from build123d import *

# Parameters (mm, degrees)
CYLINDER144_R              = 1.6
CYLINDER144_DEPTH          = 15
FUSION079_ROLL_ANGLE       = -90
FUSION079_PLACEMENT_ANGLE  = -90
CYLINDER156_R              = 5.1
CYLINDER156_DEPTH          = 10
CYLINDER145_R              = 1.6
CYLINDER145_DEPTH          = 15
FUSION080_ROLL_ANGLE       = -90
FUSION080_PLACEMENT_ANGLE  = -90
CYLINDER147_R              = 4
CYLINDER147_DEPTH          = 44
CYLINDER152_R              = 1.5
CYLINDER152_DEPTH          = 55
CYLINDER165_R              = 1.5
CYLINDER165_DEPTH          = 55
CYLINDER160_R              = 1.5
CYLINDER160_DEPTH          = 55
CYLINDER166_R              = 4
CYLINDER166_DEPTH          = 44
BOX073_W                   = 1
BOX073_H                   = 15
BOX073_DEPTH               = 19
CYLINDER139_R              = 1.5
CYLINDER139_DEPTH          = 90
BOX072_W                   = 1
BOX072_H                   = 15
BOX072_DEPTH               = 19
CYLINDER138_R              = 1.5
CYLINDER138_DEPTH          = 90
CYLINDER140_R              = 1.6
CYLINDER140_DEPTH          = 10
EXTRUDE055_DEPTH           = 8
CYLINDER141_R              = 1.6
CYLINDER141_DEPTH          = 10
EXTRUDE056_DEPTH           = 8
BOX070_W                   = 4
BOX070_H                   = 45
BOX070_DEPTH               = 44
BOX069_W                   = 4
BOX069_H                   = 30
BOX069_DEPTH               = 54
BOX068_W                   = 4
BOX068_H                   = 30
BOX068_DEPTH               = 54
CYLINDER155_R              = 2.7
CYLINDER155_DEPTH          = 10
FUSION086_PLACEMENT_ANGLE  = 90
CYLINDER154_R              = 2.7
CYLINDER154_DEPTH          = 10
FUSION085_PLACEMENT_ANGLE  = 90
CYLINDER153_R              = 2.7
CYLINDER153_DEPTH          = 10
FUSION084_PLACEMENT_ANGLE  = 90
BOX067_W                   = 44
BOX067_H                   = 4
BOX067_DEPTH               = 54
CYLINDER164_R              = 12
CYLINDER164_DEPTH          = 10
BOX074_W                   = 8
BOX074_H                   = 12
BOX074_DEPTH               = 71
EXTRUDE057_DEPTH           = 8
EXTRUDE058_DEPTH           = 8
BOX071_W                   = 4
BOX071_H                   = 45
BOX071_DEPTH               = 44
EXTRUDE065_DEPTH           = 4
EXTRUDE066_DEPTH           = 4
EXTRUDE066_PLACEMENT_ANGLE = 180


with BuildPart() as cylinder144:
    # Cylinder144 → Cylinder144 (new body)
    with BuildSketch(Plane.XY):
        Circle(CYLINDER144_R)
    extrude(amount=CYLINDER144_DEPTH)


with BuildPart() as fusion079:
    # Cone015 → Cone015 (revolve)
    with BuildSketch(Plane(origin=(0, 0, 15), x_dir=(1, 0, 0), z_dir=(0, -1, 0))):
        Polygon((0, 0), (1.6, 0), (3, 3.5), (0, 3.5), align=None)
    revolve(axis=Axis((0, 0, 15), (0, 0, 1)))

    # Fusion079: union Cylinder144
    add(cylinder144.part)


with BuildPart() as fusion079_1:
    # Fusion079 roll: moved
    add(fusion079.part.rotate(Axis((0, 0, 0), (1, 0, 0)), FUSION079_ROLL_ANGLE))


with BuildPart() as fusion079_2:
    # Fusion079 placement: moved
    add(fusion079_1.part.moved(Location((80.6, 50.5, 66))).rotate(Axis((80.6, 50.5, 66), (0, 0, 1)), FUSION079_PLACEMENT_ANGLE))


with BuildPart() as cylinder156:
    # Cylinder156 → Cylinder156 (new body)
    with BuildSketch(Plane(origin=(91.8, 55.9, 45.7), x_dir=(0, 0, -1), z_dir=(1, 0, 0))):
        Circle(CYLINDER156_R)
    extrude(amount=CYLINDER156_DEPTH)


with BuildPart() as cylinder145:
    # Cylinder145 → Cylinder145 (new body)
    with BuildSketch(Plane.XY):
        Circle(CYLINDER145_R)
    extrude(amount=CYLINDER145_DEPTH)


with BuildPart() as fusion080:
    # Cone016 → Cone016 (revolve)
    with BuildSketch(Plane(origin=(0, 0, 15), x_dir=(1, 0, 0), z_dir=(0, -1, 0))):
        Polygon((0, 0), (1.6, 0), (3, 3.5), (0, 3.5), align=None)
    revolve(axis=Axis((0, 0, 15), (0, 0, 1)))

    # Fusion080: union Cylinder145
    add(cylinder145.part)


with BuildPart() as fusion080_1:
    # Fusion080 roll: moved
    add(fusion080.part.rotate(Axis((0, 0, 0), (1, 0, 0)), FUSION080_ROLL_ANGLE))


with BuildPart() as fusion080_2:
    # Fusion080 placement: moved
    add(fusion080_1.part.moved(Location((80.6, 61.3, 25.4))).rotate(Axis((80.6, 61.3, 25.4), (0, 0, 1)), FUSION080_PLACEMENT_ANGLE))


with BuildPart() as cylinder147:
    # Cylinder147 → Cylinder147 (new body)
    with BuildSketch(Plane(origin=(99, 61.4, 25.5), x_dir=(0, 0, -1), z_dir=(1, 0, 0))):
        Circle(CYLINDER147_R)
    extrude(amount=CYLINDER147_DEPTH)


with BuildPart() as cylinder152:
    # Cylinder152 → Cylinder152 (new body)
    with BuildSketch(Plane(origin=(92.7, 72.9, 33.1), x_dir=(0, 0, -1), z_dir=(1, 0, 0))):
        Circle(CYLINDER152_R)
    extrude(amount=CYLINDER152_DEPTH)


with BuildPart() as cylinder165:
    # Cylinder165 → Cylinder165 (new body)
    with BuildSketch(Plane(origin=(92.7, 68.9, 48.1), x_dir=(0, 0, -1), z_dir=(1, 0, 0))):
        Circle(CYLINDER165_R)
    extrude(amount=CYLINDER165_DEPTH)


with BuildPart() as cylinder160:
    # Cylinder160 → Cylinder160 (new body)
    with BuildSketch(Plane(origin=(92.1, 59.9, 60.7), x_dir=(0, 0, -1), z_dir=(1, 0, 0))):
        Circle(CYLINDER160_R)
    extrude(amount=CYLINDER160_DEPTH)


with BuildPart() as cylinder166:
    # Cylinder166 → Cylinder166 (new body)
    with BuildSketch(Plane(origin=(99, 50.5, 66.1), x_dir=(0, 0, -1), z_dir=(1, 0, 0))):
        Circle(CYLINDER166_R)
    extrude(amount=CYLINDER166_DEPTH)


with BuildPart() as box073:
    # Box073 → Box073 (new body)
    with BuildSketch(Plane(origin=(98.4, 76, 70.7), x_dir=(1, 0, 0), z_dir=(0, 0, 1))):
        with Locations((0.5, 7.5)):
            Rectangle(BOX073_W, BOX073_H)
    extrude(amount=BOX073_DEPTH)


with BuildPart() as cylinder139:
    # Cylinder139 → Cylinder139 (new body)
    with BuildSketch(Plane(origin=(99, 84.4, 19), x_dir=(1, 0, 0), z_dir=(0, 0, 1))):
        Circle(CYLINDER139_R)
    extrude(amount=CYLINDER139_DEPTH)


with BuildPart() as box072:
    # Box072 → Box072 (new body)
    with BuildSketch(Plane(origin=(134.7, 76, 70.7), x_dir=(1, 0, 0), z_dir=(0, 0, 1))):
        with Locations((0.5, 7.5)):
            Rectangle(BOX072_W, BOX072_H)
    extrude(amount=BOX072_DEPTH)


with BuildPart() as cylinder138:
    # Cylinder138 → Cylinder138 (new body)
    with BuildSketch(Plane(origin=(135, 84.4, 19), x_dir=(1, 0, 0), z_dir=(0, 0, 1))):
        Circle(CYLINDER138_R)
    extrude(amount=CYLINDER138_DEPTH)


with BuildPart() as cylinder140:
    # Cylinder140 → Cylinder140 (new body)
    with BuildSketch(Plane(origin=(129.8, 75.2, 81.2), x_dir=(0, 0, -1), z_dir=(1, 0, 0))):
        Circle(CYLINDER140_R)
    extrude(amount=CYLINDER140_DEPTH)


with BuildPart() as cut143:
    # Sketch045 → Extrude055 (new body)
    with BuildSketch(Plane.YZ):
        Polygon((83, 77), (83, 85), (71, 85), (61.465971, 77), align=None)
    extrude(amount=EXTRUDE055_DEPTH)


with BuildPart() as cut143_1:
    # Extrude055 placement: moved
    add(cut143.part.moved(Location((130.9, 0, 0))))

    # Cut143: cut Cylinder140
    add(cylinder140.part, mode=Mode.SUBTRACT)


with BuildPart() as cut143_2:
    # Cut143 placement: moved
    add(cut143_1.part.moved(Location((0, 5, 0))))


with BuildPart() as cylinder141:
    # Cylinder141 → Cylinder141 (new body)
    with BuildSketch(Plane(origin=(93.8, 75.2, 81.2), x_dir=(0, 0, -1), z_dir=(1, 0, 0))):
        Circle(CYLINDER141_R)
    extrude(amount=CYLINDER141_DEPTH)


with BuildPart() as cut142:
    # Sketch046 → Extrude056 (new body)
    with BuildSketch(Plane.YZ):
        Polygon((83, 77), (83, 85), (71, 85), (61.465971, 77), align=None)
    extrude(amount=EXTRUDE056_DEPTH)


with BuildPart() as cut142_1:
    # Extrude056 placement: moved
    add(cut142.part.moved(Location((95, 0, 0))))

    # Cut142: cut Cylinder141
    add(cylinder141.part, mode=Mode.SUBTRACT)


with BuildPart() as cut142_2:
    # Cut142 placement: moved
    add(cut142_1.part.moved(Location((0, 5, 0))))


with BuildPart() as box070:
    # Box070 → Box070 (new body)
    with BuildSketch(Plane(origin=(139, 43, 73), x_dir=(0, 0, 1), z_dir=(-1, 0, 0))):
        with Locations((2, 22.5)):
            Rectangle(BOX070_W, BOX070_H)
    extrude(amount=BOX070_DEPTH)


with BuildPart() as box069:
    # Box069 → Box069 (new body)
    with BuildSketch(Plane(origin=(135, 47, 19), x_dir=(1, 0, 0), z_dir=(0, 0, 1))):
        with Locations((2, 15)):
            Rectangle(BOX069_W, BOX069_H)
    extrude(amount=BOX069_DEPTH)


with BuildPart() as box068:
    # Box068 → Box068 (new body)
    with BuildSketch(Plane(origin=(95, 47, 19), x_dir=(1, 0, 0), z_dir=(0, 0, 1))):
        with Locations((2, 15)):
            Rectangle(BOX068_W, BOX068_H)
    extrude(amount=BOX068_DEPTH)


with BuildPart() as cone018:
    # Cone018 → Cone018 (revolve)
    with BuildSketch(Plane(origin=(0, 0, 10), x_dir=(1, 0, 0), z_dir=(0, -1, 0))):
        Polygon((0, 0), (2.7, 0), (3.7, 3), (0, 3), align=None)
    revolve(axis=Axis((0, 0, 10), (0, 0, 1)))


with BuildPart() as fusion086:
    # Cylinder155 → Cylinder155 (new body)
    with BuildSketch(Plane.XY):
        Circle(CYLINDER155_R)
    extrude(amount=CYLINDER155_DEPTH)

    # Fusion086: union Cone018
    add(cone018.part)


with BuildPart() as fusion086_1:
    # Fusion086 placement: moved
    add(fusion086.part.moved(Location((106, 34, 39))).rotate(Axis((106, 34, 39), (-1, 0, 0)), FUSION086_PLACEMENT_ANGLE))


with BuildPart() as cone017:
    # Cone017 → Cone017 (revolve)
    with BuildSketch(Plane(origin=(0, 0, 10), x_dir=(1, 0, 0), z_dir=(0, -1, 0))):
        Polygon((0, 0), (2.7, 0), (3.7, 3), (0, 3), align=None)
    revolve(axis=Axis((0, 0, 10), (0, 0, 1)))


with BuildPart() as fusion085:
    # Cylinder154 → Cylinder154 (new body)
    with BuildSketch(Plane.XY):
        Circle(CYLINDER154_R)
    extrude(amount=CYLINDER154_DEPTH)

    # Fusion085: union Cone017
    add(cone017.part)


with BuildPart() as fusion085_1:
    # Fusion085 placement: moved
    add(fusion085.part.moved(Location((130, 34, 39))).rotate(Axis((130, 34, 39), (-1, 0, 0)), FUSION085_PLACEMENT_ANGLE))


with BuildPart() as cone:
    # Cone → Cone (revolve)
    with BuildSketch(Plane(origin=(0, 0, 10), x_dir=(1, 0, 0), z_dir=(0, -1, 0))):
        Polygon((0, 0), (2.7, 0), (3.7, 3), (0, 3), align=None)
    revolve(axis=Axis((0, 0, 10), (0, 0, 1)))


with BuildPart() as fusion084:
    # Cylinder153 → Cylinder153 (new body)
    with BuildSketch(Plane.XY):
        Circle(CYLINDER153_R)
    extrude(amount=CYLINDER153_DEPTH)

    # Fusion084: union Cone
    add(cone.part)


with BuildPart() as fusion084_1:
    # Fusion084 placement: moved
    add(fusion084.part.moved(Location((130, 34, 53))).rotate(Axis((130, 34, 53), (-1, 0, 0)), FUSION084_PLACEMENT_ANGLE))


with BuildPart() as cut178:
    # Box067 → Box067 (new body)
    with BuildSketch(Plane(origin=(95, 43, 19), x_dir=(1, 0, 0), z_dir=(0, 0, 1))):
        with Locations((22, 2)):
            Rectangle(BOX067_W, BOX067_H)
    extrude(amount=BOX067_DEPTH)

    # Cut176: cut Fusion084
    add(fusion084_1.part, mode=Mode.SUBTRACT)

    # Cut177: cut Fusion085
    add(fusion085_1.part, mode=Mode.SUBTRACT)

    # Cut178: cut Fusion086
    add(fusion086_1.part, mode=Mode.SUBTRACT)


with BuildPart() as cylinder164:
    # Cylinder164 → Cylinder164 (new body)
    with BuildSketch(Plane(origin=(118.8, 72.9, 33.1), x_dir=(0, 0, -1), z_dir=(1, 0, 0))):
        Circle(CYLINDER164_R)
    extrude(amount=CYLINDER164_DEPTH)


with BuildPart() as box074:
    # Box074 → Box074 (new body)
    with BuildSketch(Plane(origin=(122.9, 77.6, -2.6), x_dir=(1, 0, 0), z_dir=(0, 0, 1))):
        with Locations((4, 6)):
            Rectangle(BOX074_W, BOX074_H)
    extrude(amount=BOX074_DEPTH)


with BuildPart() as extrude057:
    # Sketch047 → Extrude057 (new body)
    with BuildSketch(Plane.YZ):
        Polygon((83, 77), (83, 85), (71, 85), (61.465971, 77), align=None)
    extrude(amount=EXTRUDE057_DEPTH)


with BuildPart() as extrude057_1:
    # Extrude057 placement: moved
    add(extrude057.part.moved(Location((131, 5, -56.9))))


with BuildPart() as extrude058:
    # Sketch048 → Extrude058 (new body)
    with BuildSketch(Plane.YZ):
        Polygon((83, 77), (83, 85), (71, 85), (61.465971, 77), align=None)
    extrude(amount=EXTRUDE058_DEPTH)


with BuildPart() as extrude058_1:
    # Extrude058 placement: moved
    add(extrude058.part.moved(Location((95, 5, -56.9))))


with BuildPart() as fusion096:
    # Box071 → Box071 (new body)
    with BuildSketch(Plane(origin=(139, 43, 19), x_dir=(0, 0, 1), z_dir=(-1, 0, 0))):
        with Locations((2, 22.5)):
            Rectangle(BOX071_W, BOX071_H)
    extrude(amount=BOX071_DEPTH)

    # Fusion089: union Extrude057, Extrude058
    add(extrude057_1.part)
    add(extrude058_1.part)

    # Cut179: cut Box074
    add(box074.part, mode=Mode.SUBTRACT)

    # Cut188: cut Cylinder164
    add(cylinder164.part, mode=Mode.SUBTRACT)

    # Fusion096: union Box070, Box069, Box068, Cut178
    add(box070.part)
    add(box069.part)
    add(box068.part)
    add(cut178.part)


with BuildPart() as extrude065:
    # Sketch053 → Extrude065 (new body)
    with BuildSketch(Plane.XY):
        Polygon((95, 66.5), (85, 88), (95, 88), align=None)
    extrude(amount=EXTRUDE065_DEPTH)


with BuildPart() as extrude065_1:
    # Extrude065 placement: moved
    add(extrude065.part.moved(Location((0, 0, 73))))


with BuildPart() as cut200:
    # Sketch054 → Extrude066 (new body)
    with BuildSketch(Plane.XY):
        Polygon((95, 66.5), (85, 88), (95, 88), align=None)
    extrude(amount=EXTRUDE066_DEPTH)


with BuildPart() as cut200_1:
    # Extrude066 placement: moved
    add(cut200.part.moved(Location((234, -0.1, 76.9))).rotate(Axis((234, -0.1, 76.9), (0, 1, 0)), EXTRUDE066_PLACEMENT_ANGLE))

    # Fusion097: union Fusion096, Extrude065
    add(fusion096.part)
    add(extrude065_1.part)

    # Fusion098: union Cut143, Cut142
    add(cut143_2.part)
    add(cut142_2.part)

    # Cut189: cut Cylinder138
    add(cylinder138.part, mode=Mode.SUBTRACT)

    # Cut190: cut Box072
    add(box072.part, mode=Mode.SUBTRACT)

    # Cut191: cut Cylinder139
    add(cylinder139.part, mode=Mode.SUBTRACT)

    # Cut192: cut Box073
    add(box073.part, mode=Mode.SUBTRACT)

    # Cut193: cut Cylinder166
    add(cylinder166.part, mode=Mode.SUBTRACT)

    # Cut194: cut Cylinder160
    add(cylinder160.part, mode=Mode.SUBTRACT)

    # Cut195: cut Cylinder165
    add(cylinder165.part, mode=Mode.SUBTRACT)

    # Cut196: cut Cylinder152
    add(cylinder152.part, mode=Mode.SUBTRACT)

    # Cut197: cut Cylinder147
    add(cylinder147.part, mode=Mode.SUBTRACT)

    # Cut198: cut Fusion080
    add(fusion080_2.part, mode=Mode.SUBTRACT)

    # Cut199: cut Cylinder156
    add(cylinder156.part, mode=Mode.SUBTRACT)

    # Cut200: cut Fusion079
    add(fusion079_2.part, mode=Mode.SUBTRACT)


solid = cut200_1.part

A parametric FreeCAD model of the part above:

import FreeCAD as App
import Part
import Sketcher

V = App.Vector
Q = App.Units.Quantity


def add_polygon(sketch, points):
    """Adds a closed chain of lines whose ends are joined by coincident constraints."""
    first, n = sketch.GeometryCount, len(points)
    for a, b in zip(points, points[1:] + points[:1]):
        sketch.addGeometry(Part.LineSegment(App.Vector(*a, 0), App.Vector(*b, 0)), False)
    for i in range(n):
        sketch.addConstraint(Sketcher.Constraint("Coincident", first + i, 2, first + (i + 1) % n, 1))

doc = App.newDocument("Part")
body = doc.addObject("PartDesign::Body", "Body")

sketch1 = body.newObject("Sketcher::SketchObject", "Sketch")
sketch1.AttachmentSupport = (doc.getObject("XY_Plane"), [""])
sketch1.MapMode = "FlatFace"
sketch1.addGeometry(Part.Circle(V(0, 0, 0), V(0, 0, 1), 1.6), False)
sketch1.addConstraint([
    Sketcher.Constraint("Coincident", 0, 3, -1, 1),
    Sketcher.Constraint("Diameter", 0, Q("3.2 mm")),
])
pad1 = body.newObject("PartDesign::Pad", "Pad")
pad1.Profile = sketch1
pad1.Length = 15
body2 = doc.addObject("PartDesign::Body", "Body001")

sketch2 = body2.newObject("Sketcher::SketchObject", "Sketch001")
sketch2.AttachmentSupport = (doc.getObject("XZ_Plane001"), [""])
sketch2.MapMode = "FlatFace"
add_polygon(sketch2, [(0, 15), (1.6, 15), (3, 18.5), (0, 18.5)])
sketch2.addConstraint([
    Sketcher.Constraint("Horizontal", 0),
    Sketcher.Constraint("Horizontal", 2),
    Sketcher.Constraint("Vertical", 3),
    Sketcher.Constraint("PointOnObject", 2, 2, -2),
    Sketcher.Constraint("DistanceX", 2, 2, 2, 1, Q("3 mm")),
    Sketcher.Constraint("DistanceX", 0, 1, 0, 2, Q("1.6 mm")),
    Sketcher.Constraint("DistanceY", 3, 2, 3, 1, Q("3.5 mm")),
    Sketcher.Constraint("DistanceY", -1, 1, 0, 2, Q("15 mm")),
])
revolution = body2.newObject("PartDesign::Revolution", "Revolution")
revolution.Profile = sketch2
revolution.ReferenceAxis = (sketch2, ["V_Axis"])
revolution.Angle = 360
doc.recompute()

boolean = body2.newObject("PartDesign::Boolean", "Boolean")
boolean.Type = "Fuse"
boolean.addObjects([body])
body3 = doc.addObject("PartDesign::Body", "Body002")
doc.recompute()

body2.Placement = App.Placement(V(0, 0, 0), App.Rotation(V(1, 0, 0), 270))
boolean2 = body3.newObject("PartDesign::Boolean", "Boolean001")
boolean2.Type = "Fuse"
boolean2.addObjects([body2])
body4 = doc.addObject("PartDesign::Body", "Body003")
doc.recompute()

body3.Placement = App.Placement(V(80.6, 50.5, 66), App.Rotation(V(0, 0, 1), 270))
boolean3 = body4.newObject("PartDesign::Boolean", "Boolean002")
boolean3.Type = "Fuse"
boolean3.addObjects([body3])
body5 = doc.addObject("PartDesign::Body", "Body004")

sketch3 = body5.newObject("Sketcher::SketchObject", "Sketch002")
sketch3.AttachmentSupport = (doc.getObject("YZ_Plane004"), [""])
sketch3.MapMode = "FlatFace"
sketch3.AttachmentOffset = App.Placement(V(0, 0, 91.8), App.Rotation())
sketch3.addGeometry(Part.Circle(V(56, 46, 0), V(0, 0, 1), 5), False)
sketch3.addConstraint([
    Sketcher.Constraint("Diameter", 0, Q("10.2 mm")),
    Sketcher.Constraint("DistanceX", -1, 1, 0, 3, Q("55.9 mm")),
    Sketcher.Constraint("DistanceY", -1, 1, 0, 3, Q("45.7 mm")),
])
pad2 = body5.newObject("PartDesign::Pad", "Pad001")
pad2.Profile = sketch3
pad2.Length = 10
body6 = doc.addObject("PartDesign::Body", "Body005")

sketch4 = body6.newObject("Sketcher::SketchObject", "Sketch003")
sketch4.AttachmentSupport = (doc.getObject("XY_Plane005"), [""])
sketch4.MapMode = "FlatFace"
sketch4.addGeometry(Part.Circle(V(0, 0, 0), V(0, 0, 1), 1.6), False)
sketch4.addConstraint([
    Sketcher.Constraint("Coincident", 0, 3, -1, 1),
    Sketcher.Constraint("Diameter", 0, Q("3.2 mm")),
])
pad3 = body6.newObject("PartDesign::Pad", "Pad002")
pad3.Profile = sketch4
pad3.Length = 15
body7 = doc.addObject("PartDesign::Body", "Body006")

sketch5 = body7.newObject("Sketcher::SketchObject", "Sketch004")
sketch5.AttachmentSupport = (doc.getObject("XZ_Plane006"), [""])
sketch5.MapMode = "FlatFace"
add_polygon(sketch5, [(0, 15), (1.6, 15), (3, 18.5), (0, 18.5)])
sketch5.addConstraint([
    Sketcher.Constraint("Horizontal", 0),
    Sketcher.Constraint("Horizontal", 2),
    Sketcher.Constraint("Vertical", 3),
    Sketcher.Constraint("PointOnObject", 2, 2, -2),
    Sketcher.Constraint("DistanceX", 2, 2, 2, 1, Q("3 mm")),
    Sketcher.Constraint("DistanceX", 0, 1, 0, 2, Q("1.6 mm")),
    Sketcher.Constraint("DistanceY", 3, 2, 3, 1, Q("3.5 mm")),
    Sketcher.Constraint("DistanceY", -1, 1, 0, 2, Q("15 mm")),
])
revolution2 = body7.newObject("PartDesign::Revolution", "Revolution001")
revolution2.Profile = sketch5
revolution2.ReferenceAxis = (sketch5, ["V_Axis"])
revolution2.Angle = 360
doc.recompute()

boolean4 = body7.newObject("PartDesign::Boolean", "Boolean003")
boolean4.Type = "Fuse"
boolean4.addObjects([body6])
body8 = doc.addObject("PartDesign::Body", "Body007")
doc.recompute()

body7.Placement = App.Placement(V(0, 0, 0), App.Rotation(V(1, 0, 0), 270))
boolean5 = body8.newObject("PartDesign::Boolean", "Boolean004")
boolean5.Type = "Fuse"
boolean5.addObjects([body7])
body9 = doc.addObject("PartDesign::Body", "Body008")
doc.recompute()

body8.Placement = App.Placement(V(80.6, 61.3, 25.4), App.Rotation(V(0, 0, 1), 270))
boolean6 = body9.newObject("PartDesign::Boolean", "Boolean005")
boolean6.Type = "Fuse"
boolean6.addObjects([body8])
body10 = doc.addObject("PartDesign::Body", "Body009")

sketch6 = body10.newObject("Sketcher::SketchObject", "Sketch005")
sketch6.AttachmentSupport = (doc.getObject("YZ_Plane009"), [""])
sketch6.MapMode = "FlatFace"
sketch6.AttachmentOffset = App.Placement(V(0, 0, 99), App.Rotation())
sketch6.addGeometry(Part.Circle(V(61.4, 25.5, 0), V(0, 0, 1), 4), False)
sketch6.addConstraint([
    Sketcher.Constraint("Diameter", 0, Q("8 mm")),
    Sketcher.Constraint("DistanceX", -1, 1, 0, 3, Q("61.4 mm")),
    Sketcher.Constraint("DistanceY", -1, 1, 0, 3, Q("25.5 mm")),
])
pad4 = body10.newObject("PartDesign::Pad", "Pad003")
pad4.Profile = sketch6
pad4.Length = 44
body11 = doc.addObject("PartDesign::Body", "Body010")

sketch7 = body11.newObject("Sketcher::SketchObject", "Sketch006")
sketch7.AttachmentSupport = (doc.getObject("YZ_Plane010"), [""])
sketch7.MapMode = "FlatFace"
sketch7.AttachmentOffset = App.Placement(V(0, 0, 92.7), App.Rotation())
sketch7.addGeometry(Part.Circle(V(72.9, 33.1, 0), V(0, 0, 1), 1.5), False)
sketch7.addConstraint([
    Sketcher.Constraint("Diameter", 0, Q("3 mm")),
    Sketcher.Constraint("DistanceX", -1, 1, 0, 3, Q("72.9 mm")),
    Sketcher.Constraint("DistanceY", -1, 1, 0, 3, Q("33.1 mm")),
])
pad5 = body11.newObject("PartDesign::Pad", "Pad004")
pad5.Profile = sketch7
pad5.Length = 55
body12 = doc.addObject("PartDesign::Body", "Body011")

sketch8 = body12.newObject("Sketcher::SketchObject", "Sketch007")
sketch8.AttachmentSupport = (doc.getObject("YZ_Plane011"), [""])
sketch8.MapMode = "FlatFace"
sketch8.AttachmentOffset = App.Placement(V(0, 0, 92.7), App.Rotation())
sketch8.addGeometry(Part.Circle(V(68.9, 48.1, 0), V(0, 0, 1), 1.5), False)
sketch8.addConstraint([
    Sketcher.Constraint("Diameter", 0, Q("3 mm")),
    Sketcher.Constraint("DistanceX", -1, 1, 0, 3, Q("68.9 mm")),
    Sketcher.Constraint("DistanceY", -1, 1, 0, 3, Q("48.1 mm")),
])
pad6 = body12.newObject("PartDesign::Pad", "Pad005")
pad6.Profile = sketch8
pad6.Length = 55
body13 = doc.addObject("PartDesign::Body", "Body012")

sketch9 = body13.newObject("Sketcher::SketchObject", "Sketch008")
sketch9.AttachmentSupport = (doc.getObject("YZ_Plane012"), [""])
sketch9.MapMode = "FlatFace"
sketch9.AttachmentOffset = App.Placement(V(0, 0, 92.1), App.Rotation())
sketch9.addGeometry(Part.Circle(V(59.9, 60.7, 0), V(0, 0, 1), 1.5), False)
sketch9.addConstraint([
    Sketcher.Constraint("Diameter", 0, Q("3 mm")),
    Sketcher.Constraint("DistanceX", -1, 1, 0, 3, Q("59.9 mm")),
    Sketcher.Constraint("DistanceY", -1, 1, 0, 3, Q("60.7 mm")),
])
pad7 = body13.newObject("PartDesign::Pad", "Pad006")
pad7.Profile = sketch9
pad7.Length = 55
body14 = doc.addObject("PartDesign::Body", "Body013")

sketch10 = body14.newObject("Sketcher::SketchObject", "Sketch009")
sketch10.AttachmentSupport = (doc.getObject("YZ_Plane013"), [""])
sketch10.MapMode = "FlatFace"
sketch10.AttachmentOffset = App.Placement(V(0, 0, 99), App.Rotation())
sketch10.addGeometry(Part.Circle(V(50.5, 66.1, 0), V(0, 0, 1), 4), False)
sketch10.addConstraint([
    Sketcher.Constraint("Diameter", 0, Q("8 mm")),
    Sketcher.Constraint("DistanceX", -1, 1, 0, 3, Q("50.5 mm")),
    Sketcher.Constraint("DistanceY", -1, 1, 0, 3, Q("66.1 mm")),
])
pad8 = body14.newObject("PartDesign::Pad", "Pad007")
pad8.Profile = sketch10
pad8.Length = 44
body15 = doc.addObject("PartDesign::Body", "Body014")

sketch11 = body15.newObject("Sketcher::SketchObject", "Sketch010")
sketch11.AttachmentSupport = (doc.getObject("XY_Plane014"), [""])
sketch11.MapMode = "FlatFace"
sketch11.AttachmentOffset = App.Placement(V(0, 0, 70.7), App.Rotation())
add_polygon(sketch11, [(98.4, 91), (98.4, 76), (99.4, 76), (99.4, 91)])
sketch11.addConstraint([
    Sketcher.Constraint("Vertical", 0),
    Sketcher.Constraint("Horizontal", 1),
    Sketcher.Constraint("Vertical", 2),
    Sketcher.Constraint("Horizontal", 3),
    Sketcher.Constraint("DistanceX", 1, 1, 1, 2, Q("1 mm")),
    Sketcher.Constraint("DistanceY", 0, 2, 0, 1, Q("15 mm")),
    Sketcher.Constraint("DistanceY", -1, 1, 0, 2, Q("76 mm")),
    Sketcher.Constraint("DistanceX", -1, 1, 0, 2, Q("98.4 mm")),
])
pad9 = body15.newObject("PartDesign::Pad", "Pad008")
pad9.Profile = sketch11
pad9.Length = 19
body16 = doc.addObject("PartDesign::Body", "Body015")

sketch12 = body16.newObject("Sketcher::SketchObject", "Sketch011")
sketch12.AttachmentSupport = (doc.getObject("XY_Plane015"), [""])
sketch12.MapMode = "FlatFace"
sketch12.AttachmentOffset = App.Placement(V(0, 0, 19), App.Rotation())
sketch12.addGeometry(Part.Circle(V(99, 84.4, 0), V(0, 0, 1), 1.5), False)
sketch12.addConstraint([
    Sketcher.Constraint("Diameter", 0, Q("3 mm")),
    Sketcher.Constraint("DistanceX", -1, 1, 0, 3, Q("99 mm")),
    Sketcher.Constraint("DistanceY", -1, 1, 0, 3, Q("84.4 mm")),
])
pad10 = body16.newObject("PartDesign::Pad", "Pad009")
pad10.Profile = sketch12
pad10.Length = 90
body17 = doc.addObject("PartDesign::Body", "Body016")

sketch13 = body17.newObject("Sketcher::SketchObject", "Sketch012")
sketch13.AttachmentSupport = (doc.getObject("XY_Plane016"), [""])
sketch13.MapMode = "FlatFace"
sketch13.AttachmentOffset = App.Placement(V(0, 0, 70.7), App.Rotation())
add_polygon(sketch13, [(134.7, 91), (134.7, 76), (135.7, 76), (135.7, 91)])
sketch13.addConstraint([
    Sketcher.Constraint("Vertical", 0),
    Sketcher.Constraint("Horizontal", 1),
    Sketcher.Constraint("Vertical", 2),
    Sketcher.Constraint("Horizontal", 3),
    Sketcher.Constraint("DistanceX", 1, 1, 1, 2, Q("1 mm")),
    Sketcher.Constraint("DistanceY", 0, 2, 0, 1, Q("15 mm")),
    Sketcher.Constraint("DistanceY", -1, 1, 0, 2, Q("76 mm")),
    Sketcher.Constraint("DistanceX", -1, 1, 0, 2, Q("134.7 mm")),
])
pad11 = body17.newObject("PartDesign::Pad", "Pad010")
pad11.Profile = sketch13
pad11.Length = 19
body18 = doc.addObject("PartDesign::Body", "Body017")

sketch14 = body18.newObject("Sketcher::SketchObject", "Sketch013")
sketch14.AttachmentSupport = (doc.getObject("XY_Plane017"), [""])
sketch14.MapMode = "FlatFace"
sketch14.AttachmentOffset = App.Placement(V(0, 0, 19), App.Rotation())
sketch14.addGeometry(Part.Circle(V(135, 84.4, 0), V(0, 0, 1), 1.5), False)
sketch14.addConstraint([
    Sketcher.Constraint("Diameter", 0, Q("3 mm")),
    Sketcher.Constraint("DistanceX", -1, 1, 0, 3, Q("135 mm")),
    Sketcher.Constraint("DistanceY", -1, 1, 0, 3, Q("84.4 mm")),
])
pad12 = body18.newObject("PartDesign::Pad", "Pad011")
pad12.Profile = sketch14
pad12.Length = 90
body19 = doc.addObject("PartDesign::Body", "Body018")

sketch15 = body19.newObject("Sketcher::SketchObject", "Sketch014")
sketch15.AttachmentSupport = (doc.getObject("YZ_Plane018"), [""])
sketch15.MapMode = "FlatFace"
sketch15.AttachmentOffset = App.Placement(V(0, 0, 129.8), App.Rotation())
sketch15.addGeometry(Part.Circle(V(75.2, 81.2, 0), V(0, 0, 1), 1.6), False)
sketch15.addConstraint([
    Sketcher.Constraint("Diameter", 0, Q("3.2 mm")),
    Sketcher.Constraint("DistanceX", -1, 1, 0, 3, Q("75.2 mm")),
    Sketcher.Constraint("DistanceY", -1, 1, 0, 3, Q("81.2 mm")),
])
pad13 = body19.newObject("PartDesign::Pad", "Pad012")
pad13.Profile = sketch15
pad13.Length = 10
body20 = doc.addObject("PartDesign::Body", "Body019")

sketch16 = body20.newObject("Sketcher::SketchObject", "Sketch015")
sketch16.AttachmentSupport = (doc.getObject("YZ_Plane019"), [""])
sketch16.MapMode = "FlatFace"
add_polygon(sketch16, [(83, 77), (83, 85), (71, 85), (61, 77)])
sketch16.addConstraint([
    Sketcher.Constraint("Vertical", 0),
    Sketcher.Constraint("Horizontal", 1),
    Sketcher.Constraint("Horizontal", 3),
    Sketcher.Constraint("DistanceX", 1, 2, 1, 1, Q("12 mm")),
    Sketcher.Constraint("DistanceY", 0, 1, 0, 2, Q("8 mm")),
    Sketcher.Constraint("Angle", 2, Q("-140.000001 deg")),
    Sketcher.Constraint("DistanceX", -1, 1, 0, 2, Q("83 mm")),
    Sketcher.Constraint("DistanceY", -1, 1, 0, 2, Q("85 mm")),
])
pad14 = body20.newObject("PartDesign::Pad", "Pad013")
pad14.Profile = sketch16
pad14.Length = 8
body21 = doc.addObject("PartDesign::Body", "Body020")
doc.recompute()

body20.Placement = App.Placement(V(130.9, 0, 0), App.Rotation(V(0, 0, 1), 0))
boolean7 = body21.newObject("PartDesign::Boolean", "Boolean006")
boolean7.Type = "Fuse"
boolean7.addObjects([body20])
doc.recompute()

boolean8 = body21.newObject("PartDesign::Boolean", "Boolean007")
boolean8.Type = "Cut"
boolean8.addObjects([body19])
body22 = doc.addObject("PartDesign::Body", "Body021")
doc.recompute()

body21.Placement = App.Placement(V(0, 5, 0), App.Rotation(V(0, 0, 1), 0))
boolean9 = body22.newObject("PartDesign::Boolean", "Boolean008")
boolean9.Type = "Fuse"
boolean9.addObjects([body21])
body23 = doc.addObject("PartDesign::Body", "Body022")

sketch17 = body23.newObject("Sketcher::SketchObject", "Sketch016")
sketch17.AttachmentSupport = (doc.getObject("YZ_Plane022"), [""])
sketch17.MapMode = "FlatFace"
sketch17.AttachmentOffset = App.Placement(V(0, 0, 93.8), App.Rotation())
sketch17.addGeometry(Part.Circle(V(75.2, 81.2, 0), V(0, 0, 1), 1.6), False)
sketch17.addConstraint([
    Sketcher.Constraint("Diameter", 0, Q("3.2 mm")),
    Sketcher.Constraint("DistanceX", -1, 1, 0, 3, Q("75.2 mm")),
    Sketcher.Constraint("DistanceY", -1, 1, 0, 3, Q("81.2 mm")),
])
pad15 = body23.newObject("PartDesign::Pad", "Pad014")
pad15.Profile = sketch17
pad15.Length = 10
body24 = doc.addObject("PartDesign::Body", "Body023")

sketch18 = body24.newObject("Sketcher::SketchObject", "Sketch017")
sketch18.AttachmentSupport = (doc.getObject("YZ_Plane023"), [""])
sketch18.MapMode = "FlatFace"
add_polygon(sketch18, [(83, 77), (83, 85), (71, 85), (61, 77)])
sketch18.addConstraint([
    Sketcher.Constraint("Vertical", 0),
    Sketcher.Constraint("Horizontal", 1),
    Sketcher.Constraint("Horizontal", 3),
    Sketcher.Constraint("DistanceX", 1, 2, 1, 1, Q("12 mm")),
    Sketcher.Constraint("DistanceY", 0, 1, 0, 2, Q("8 mm")),
    Sketcher.Constraint("Angle", 2, Q("-140.000001 deg")),
    Sketcher.Constraint("DistanceX", -1, 1, 0, 2, Q("83 mm")),
    Sketcher.Constraint("DistanceY", -1, 1, 0, 2, Q("85 mm")),
])
pad16 = body24.newObject("PartDesign::Pad", "Pad015")
pad16.Profile = sketch18
pad16.Length = 8
body25 = doc.addObject("PartDesign::Body", "Body024")
doc.recompute()

body24.Placement = App.Placement(V(95, 0, 0), App.Rotation(V(0, 0, 1), 0))
boolean10 = body25.newObject("PartDesign::Boolean", "Boolean009")
boolean10.Type = "Fuse"
boolean10.addObjects([body24])
doc.recompute()

boolean11 = body25.newObject("PartDesign::Boolean", "Boolean010")
boolean11.Type = "Cut"
boolean11.addObjects([body23])
body26 = doc.addObject("PartDesign::Body", "Body025")
doc.recompute()

body25.Placement = App.Placement(V(0, 5, 0), App.Rotation(V(0, 0, 1), 0))
boolean12 = body26.newObject("PartDesign::Boolean", "Boolean011")
boolean12.Type = "Fuse"
boolean12.addObjects([body25])
body27 = doc.addObject("PartDesign::Body", "Body026")

sketch19 = body27.newObject("Sketcher::SketchObject", "Sketch018")
sketch19.AttachmentSupport = (doc.getObject("YZ_Plane026"), [""])
sketch19.MapMode = "FlatFace"
sketch19.AttachmentOffset = App.Placement(V(0, 0, 139), App.Rotation())
add_polygon(sketch19, [(88, 73), (43, 73), (43, 77), (88, 77)])
sketch19.addConstraint([
    Sketcher.Constraint("Horizontal", 0),
    Sketcher.Constraint("Vertical", 1),
    Sketcher.Constraint("Horizontal", 2),
    Sketcher.Constraint("Vertical", 3),
    Sketcher.Constraint("DistanceX", 0, 2, 0, 1, Q("45 mm")),
    Sketcher.Constraint("DistanceY", 1, 1, 1, 2, Q("4 mm")),
    Sketcher.Constraint("DistanceX", -1, 1, 0, 2, Q("43 mm")),
    Sketcher.Constraint("DistanceY", -1, 1, 0, 2, Q("73 mm")),
])
pad17 = body27.newObject("PartDesign::Pad", "Pad016")
pad17.Profile = sketch19
pad17.Length = 44
pad17.Reversed = True
body28 = doc.addObject("PartDesign::Body", "Body027")

sketch20 = body28.newObject("Sketcher::SketchObject", "Sketch019")
sketch20.AttachmentSupport = (doc.getObject("XY_Plane027"), [""])
sketch20.MapMode = "FlatFace"
sketch20.AttachmentOffset = App.Placement(V(0, 0, 19), App.Rotation())
add_polygon(sketch20, [(135, 77), (135, 47), (139, 47), (139, 77)])
sketch20.addConstraint([
    Sketcher.Constraint("Vertical", 0),
    Sketcher.Constraint("Horizontal", 1),
    Sketcher.Constraint("Vertical", 2),
    Sketcher.Constraint("Horizontal", 3),
    Sketcher.Constraint("DistanceX", 1, 1, 1, 2, Q("4 mm")),
    Sketcher.Constraint("DistanceY", 0, 2, 0, 1, Q("30 mm")),
    Sketcher.Constraint("DistanceX", -1, 1, 0, 2, Q("135 mm")),
    Sketcher.Constraint("DistanceY", -1, 1, 0, 2, Q("47 mm")),
])
pad18 = body28.newObject("PartDesign::Pad", "Pad017")
pad18.Profile = sketch20
pad18.Length = 54
body29 = doc.addObject("PartDesign::Body", "Body028")

sketch21 = body29.newObject("Sketcher::SketchObject", "Sketch020")
sketch21.AttachmentSupport = (doc.getObject("XY_Plane028"), [""])
sketch21.MapMode = "FlatFace"
sketch21.AttachmentOffset = App.Placement(V(0, 0, 19), App.Rotation())
add_polygon(sketch21, [(95, 77), (95, 47), (99, 47), (99, 77)])
sketch21.addConstraint([
    Sketcher.Constraint("Vertical", 0),
    Sketcher.Constraint("Horizontal", 1),
    Sketcher.Constraint("Vertical", 2),
    Sketcher.Constraint("Horizontal", 3),
    Sketcher.Constraint("DistanceX", 1, 1, 1, 2, Q("4 mm")),
    Sketcher.Constraint("DistanceY", 0, 2, 0, 1, Q("30 mm")),
    Sketcher.Constraint("DistanceX", -1, 1, 0, 2, Q("95 mm")),
    Sketcher.Constraint("DistanceY", -1, 1, 0, 2, Q("47 mm")),
])
pad19 = body29.newObject("PartDesign::Pad", "Pad018")
pad19.Profile = sketch21
pad19.Length = 54
body30 = doc.addObject("PartDesign::Body", "Body029")

sketch22 = body30.newObject("Sketcher::SketchObject", "Sketch021")
sketch22.AttachmentSupport = (doc.getObject("XZ_Plane029"), [""])
sketch22.MapMode = "FlatFace"
add_polygon(sketch22, [(0, 10), (2.7, 10), (3.7, 13), (0, 13)])
sketch22.addConstraint([
    Sketcher.Constraint("Horizontal", 0),
    Sketcher.Constraint("Horizontal", 2),
    Sketcher.Constraint("Vertical", 3),
    Sketcher.Constraint("PointOnObject", 2, 2, -2),
    Sketcher.Constraint("DistanceY", 3, 2, 3, 1, Q("3 mm")),
    Sketcher.Constraint("DistanceX", 0, 1, 0, 2, Q("2.7 mm")),
    Sketcher.Constraint("DistanceX", 2, 2, 2, 1, Q("3.7 mm")),
    Sketcher.Constraint("DistanceY", -1, 1, 0, 2, Q("10 mm")),
])
revolution3 = body30.newObject("PartDesign::Revolution", "Revolution002")
revolution3.Profile = sketch22
revolution3.ReferenceAxis = (sketch22, ["V_Axis"])
revolution3.Angle = 360
body31 = doc.addObject("PartDesign::Body", "Body030")

sketch23 = body31.newObject("Sketcher::SketchObject", "Sketch022")
sketch23.AttachmentSupport = (doc.getObject("XY_Plane030"), [""])
sketch23.MapMode = "FlatFace"
sketch23.addGeometry(Part.Circle(V(0, 0, 0), V(0, 0, 1), 2.7), False)
sketch23.addConstraint([
    Sketcher.Constraint("Coincident", 0, 3, -1, 1),
    Sketcher.Constraint("Diameter", 0, Q("5.4 mm")),
])
pad20 = body31.newObject("PartDesign::Pad", "Pad019")
pad20.Profile = sketch23
pad20.Length = 10
doc.recompute()

boolean13 = body31.newObject("PartDesign::Boolean", "Boolean012")
boolean13.Type = "Fuse"
boolean13.addObjects([body30])
body32 = doc.addObject("PartDesign::Body", "Body031")
doc.recompute()

body31.Placement = App.Placement(V(106, 34, 39), App.Rotation(V(-1, 0, 0), 90))
boolean14 = body32.newObject("PartDesign::Boolean", "Boolean013")
boolean14.Type = "Fuse"
boolean14.addObjects([body31])
body33 = doc.addObject("PartDesign::Body", "Body032")

sketch24 = body33.newObject("Sketcher::SketchObject", "Sketch023")
sketch24.AttachmentSupport = (doc.getObject("XZ_Plane032"), [""])
sketch24.MapMode = "FlatFace"
add_polygon(sketch24, [(0, 10), (2.7, 10), (3.7, 13), (0, 13)])
sketch24.addConstraint([
    Sketcher.Constraint("Horizontal", 0),
    Sketcher.Constraint("Horizontal", 2),
    Sketcher.Constraint("Vertical", 3),
    Sketcher.Constraint("PointOnObject", 2, 2, -2),
    Sketcher.Constraint("DistanceY", 3, 2, 3, 1, Q("3 mm")),
    Sketcher.Constraint("DistanceX", 0, 1, 0, 2, Q("2.7 mm")),
    Sketcher.Constraint("DistanceX", 2, 2, 2, 1, Q("3.7 mm")),
    Sketcher.Constraint("DistanceY", -1, 1, 0, 2, Q("10 mm")),
])
revolution4 = body33.newObject("PartDesign::Revolution", "Revolution003")
revolution4.Profile = sketch24
revolution4.ReferenceAxis = (sketch24, ["V_Axis"])
revolution4.Angle = 360
body34 = doc.addObject("PartDesign::Body", "Body033")

sketch25 = body34.newObject("Sketcher::SketchObject", "Sketch024")
sketch25.AttachmentSupport = (doc.getObject("XY_Plane033"), [""])
sketch25.MapMode = "FlatFace"
sketch25.addGeometry(Part.Circle(V(0, 0, 0), V(0, 0, 1), 2.7), False)
sketch25.addConstraint([
    Sketcher.Constraint("Coincident", 0, 3, -1, 1),
    Sketcher.Constraint("Diameter", 0, Q("5.4 mm")),
])
pad21 = body34.newObject("PartDesign::Pad", "Pad020")
pad21.Profile = sketch25
pad21.Length = 10
doc.recompute()

boolean15 = body34.newObject("PartDesign::Boolean", "Boolean014")
boolean15.Type = "Fuse"
boolean15.addObjects([body33])
body35 = doc.addObject("PartDesign::Body", "Body034")
doc.recompute()

body34.Placement = App.Placement(V(130, 34, 39), App.Rotation(V(-1, 0, 0), 90))
boolean16 = body35.newObject("PartDesign::Boolean", "Boolean015")
boolean16.Type = "Fuse"
boolean16.addObjects([body34])
body36 = doc.addObject("PartDesign::Body", "Body035")

sketch26 = body36.newObject("Sketcher::SketchObject", "Sketch025")
sketch26.AttachmentSupport = (doc.getObject("XZ_Plane035"), [""])
sketch26.MapMode = "FlatFace"
add_polygon(sketch26, [(0, 10), (2.7, 10), (3.7, 13), (0, 13)])
sketch26.addConstraint([
    Sketcher.Constraint("Horizontal", 0),
    Sketcher.Constraint("Horizontal", 2),
    Sketcher.Constraint("Vertical", 3),
    Sketcher.Constraint("PointOnObject", 2, 2, -2),
    Sketcher.Constraint("DistanceY", 3, 2, 3, 1, Q("3 mm")),
    Sketcher.Constraint("DistanceX", 0, 1, 0, 2, Q("2.7 mm")),
    Sketcher.Constraint("DistanceX", 2, 2, 2, 1, Q("3.7 mm")),
    Sketcher.Constraint("DistanceY", -1, 1, 0, 2, Q("10 mm")),
])
revolution5 = body36.newObject("PartDesign::Revolution", "Revolution004")
revolution5.Profile = sketch26
revolution5.ReferenceAxis = (sketch26, ["V_Axis"])
revolution5.Angle = 360
body37 = doc.addObject("PartDesign::Body", "Body036")

sketch27 = body37.newObject("Sketcher::SketchObject", "Sketch026")
sketch27.AttachmentSupport = (doc.getObject("XY_Plane036"), [""])
sketch27.MapMode = "FlatFace"
sketch27.addGeometry(Part.Circle(V(0, 0, 0), V(0, 0, 1), 2.7), False)
sketch27.addConstraint([
    Sketcher.Constraint("Coincident", 0, 3, -1, 1),
    Sketcher.Constraint("Diameter", 0, Q("5.4 mm")),
])
pad22 = body37.newObject("PartDesign::Pad", "Pad021")
pad22.Profile = sketch27
pad22.Length = 10
doc.recompute()

boolean17 = body37.newObject("PartDesign::Boolean", "Boolean016")
boolean17.Type = "Fuse"
boolean17.addObjects([body36])
body38 = doc.addObject("PartDesign::Body", "Body037")
doc.recompute()

body37.Placement = App.Placement(V(130, 34, 53), App.Rotation(V(-1, 0, 0), 90))
boolean18 = body38.newObject("PartDesign::Boolean", "Boolean017")
boolean18.Type = "Fuse"
boolean18.addObjects([body37])
body39 = doc.addObject("PartDesign::Body", "Body038")

sketch28 = body39.newObject("Sketcher::SketchObject", "Sketch027")
sketch28.AttachmentSupport = (doc.getObject("XY_Plane038"), [""])
sketch28.MapMode = "FlatFace"
sketch28.AttachmentOffset = App.Placement(V(0, 0, 19), App.Rotation())
add_polygon(sketch28, [(95, 47), (95, 43), (139, 43), (139, 47)])
sketch28.addConstraint([
    Sketcher.Constraint("Vertical", 0),
    Sketcher.Constraint("Horizontal", 1),
    Sketcher.Constraint("Vertical", 2),
    Sketcher.Constraint("Horizontal", 3),
    Sketcher.Constraint("DistanceX", 1, 1, 1, 2, Q("44 mm")),
    Sketcher.Constraint("DistanceY", 0, 2, 0, 1, Q("4 mm")),
    Sketcher.Constraint("DistanceX", -1, 1, 0, 2, Q("95 mm")),
    Sketcher.Constraint("DistanceY", -1, 1, 0, 2, Q("43 mm")),
])
pad23 = body39.newObject("PartDesign::Pad", "Pad022")
pad23.Profile = sketch28
pad23.Length = 54
doc.recompute()

boolean19 = body39.newObject("PartDesign::Boolean", "Boolean018")
boolean19.Type = "Cut"
boolean19.addObjects([body38])
doc.recompute()

boolean20 = body39.newObject("PartDesign::Boolean", "Boolean019")
boolean20.Type = "Cut"
boolean20.addObjects([body35])
doc.recompute()

boolean21 = body39.newObject("PartDesign::Boolean", "Boolean020")
boolean21.Type = "Cut"
boolean21.addObjects([body32])
body40 = doc.addObject("PartDesign::Body", "Body039")

sketch29 = body40.newObject("Sketcher::SketchObject", "Sketch028")
sketch29.AttachmentSupport = (doc.getObject("YZ_Plane039"), [""])
sketch29.MapMode = "FlatFace"
sketch29.AttachmentOffset = App.Placement(V(0, 0, 118.8), App.Rotation())
sketch29.addGeometry(Part.Circle(V(73, 33, 0), V(0, 0, 1), 12), False)
sketch29.addConstraint([
    Sketcher.Constraint("Diameter", 0, Q("24 mm")),
    Sketcher.Constraint("DistanceX", -1, 1, 0, 3, Q("72.9 mm")),
    Sketcher.Constraint("DistanceY", -1, 1, 0, 3, Q("33.1 mm")),
])
pad24 = body40.newObject("PartDesign::Pad", "Pad023")
pad24.Profile = sketch29
pad24.Length = 10
body41 = doc.addObject("PartDesign::Body", "Body040")

sketch30 = body41.newObject("Sketcher::SketchObject", "Sketch029")
sketch30.AttachmentSupport = (doc.getObject("XY_Plane040"), [""])
sketch30.MapMode = "FlatFace"
sketch30.AttachmentOffset = App.Placement(V(0, 0, -2.6), App.Rotation())
add_polygon(sketch30, [(123, 90), (123, 78), (131, 78), (131, 90)])
sketch30.addConstraint([
    Sketcher.Constraint("Vertical", 0),
    Sketcher.Constraint("Horizontal", 1),
    Sketcher.Constraint("Vertical", 2),
    Sketcher.Constraint("Horizontal", 3),
    Sketcher.Constraint("DistanceX", 1, 1, 1, 2, Q("8 mm")),
    Sketcher.Constraint("DistanceY", 0, 2, 0, 1, Q("12 mm")),
    Sketcher.Constraint("DistanceX", -1, 1, 0, 2, Q("122.9 mm")),
    Sketcher.Constraint("DistanceY", -1, 1, 0, 2, Q("77.6 mm")),
])
pad25 = body41.newObject("PartDesign::Pad", "Pad024")
pad25.Profile = sketch30
pad25.Length = 71
body42 = doc.addObject("PartDesign::Body", "Body041")

sketch31 = body42.newObject("Sketcher::SketchObject", "Sketch030")
sketch31.AttachmentSupport = (doc.getObject("YZ_Plane041"), [""])
sketch31.MapMode = "FlatFace"
add_polygon(sketch31, [(83, 77), (83, 85), (71, 85), (61, 77)])
sketch31.addConstraint([
    Sketcher.Constraint("Vertical", 0),
    Sketcher.Constraint("Horizontal", 1),
    Sketcher.Constraint("Horizontal", 3),
    Sketcher.Constraint("DistanceX", 1, 2, 1, 1, Q("12 mm")),
    Sketcher.Constraint("DistanceY", 0, 1, 0, 2, Q("8 mm")),
    Sketcher.Constraint("Angle", 2, Q("-140.000001 deg")),
    Sketcher.Constraint("DistanceX", -1, 1, 0, 2, Q("83 mm")),
    Sketcher.Constraint("DistanceY", -1, 1, 0, 2, Q("85 mm")),
])
pad26 = body42.newObject("PartDesign::Pad", "Pad025")
pad26.Profile = sketch31
pad26.Length = 8
body43 = doc.addObject("PartDesign::Body", "Body042")
doc.recompute()

body42.Placement = App.Placement(V(131, 5, -56.9), App.Rotation(V(0, 0, 1), 0))
boolean22 = body43.newObject("PartDesign::Boolean", "Boolean021")
boolean22.Type = "Fuse"
boolean22.addObjects([body42])
body44 = doc.addObject("PartDesign::Body", "Body043")

sketch32 = body44.newObject("Sketcher::SketchObject", "Sketch031")
sketch32.AttachmentSupport = (doc.getObject("YZ_Plane043"), [""])
sketch32.MapMode = "FlatFace"
add_polygon(sketch32, [(83, 77), (83, 85), (71, 85), (61, 77)])
sketch32.addConstraint([
    Sketcher.Constraint("Vertical", 0),
    Sketcher.Constraint("Horizontal", 1),
    Sketcher.Constraint("Horizontal", 3),
    Sketcher.Constraint("DistanceX", 1, 2, 1, 1, Q("12 mm")),
    Sketcher.Constraint("DistanceY", 0, 1, 0, 2, Q("8 mm")),
    Sketcher.Constraint("Angle", 2, Q("-140.000001 deg")),
    Sketcher.Constraint("DistanceX", -1, 1, 0, 2, Q("83 mm")),
    Sketcher.Constraint("DistanceY", -1, 1, 0, 2, Q("85 mm")),
])
pad27 = body44.newObject("PartDesign::Pad", "Pad026")
pad27.Profile = sketch32
pad27.Length = 8
body45 = doc.addObject("PartDesign::Body", "Body044")
doc.recompute()

body44.Placement = App.Placement(V(95, 5, -56.9), App.Rotation(V(0, 0, 1), 0))
boolean23 = body45.newObject("PartDesign::Boolean", "Boolean022")
boolean23.Type = "Fuse"
boolean23.addObjects([body44])
body46 = doc.addObject("PartDesign::Body", "Body045")
body46.AllowCompound = True

sketch33 = body46.newObject("Sketcher::SketchObject", "Sketch032")
sketch33.AttachmentSupport = (doc.getObject("YZ_Plane045"), [""])
sketch33.MapMode = "FlatFace"
sketch33.AttachmentOffset = App.Placement(V(0, 0, 139), App.Rotation())
add_polygon(sketch33, [(88, 19), (43, 19), (43, 23), (88, 23)])
sketch33.addConstraint([
    Sketcher.Constraint("Horizontal", 0),
    Sketcher.Constraint("Vertical", 1),
    Sketcher.Constraint("Horizontal", 2),
    Sketcher.Constraint("Vertical", 3),
    Sketcher.Constraint("DistanceX", 0, 2, 0, 1, Q("45 mm")),
    Sketcher.Constraint("DistanceY", 1, 1, 1, 2, Q("4 mm")),
    Sketcher.Constraint("DistanceX", -1, 1, 0, 2, Q("43 mm")),
    Sketcher.Constraint("DistanceY", -1, 1, 0, 2, Q("19 mm")),
])
pad28 = body46.newObject("PartDesign::Pad", "Pad027")
pad28.Profile = sketch33
pad28.Length = 44
pad28.Reversed = True
doc.recompute()

boolean24 = body46.newObject("PartDesign::Boolean", "Boolean023")
boolean24.Type = "Fuse"
boolean24.addObjects([body43])
doc.recompute()

boolean25 = body46.newObject("PartDesign::Boolean", "Boolean024")
boolean25.Type = "Fuse"
boolean25.addObjects([body45])
doc.recompute()

boolean26 = body46.newObject("PartDesign::Boolean", "Boolean025")
boolean26.Type = "Cut"
boolean26.addObjects([body41])
doc.recompute()

boolean27 = body46.newObject("PartDesign::Boolean", "Boolean026")
boolean27.Type = "Cut"
boolean27.addObjects([body40])
doc.recompute()

boolean28 = body46.newObject("PartDesign::Boolean", "Boolean027")
boolean28.Type = "Fuse"
boolean28.addObjects([body27])
doc.recompute()

boolean29 = body46.newObject("PartDesign::Boolean", "Boolean028")
boolean29.Type = "Fuse"
boolean29.addObjects([body28])
doc.recompute()

boolean30 = body46.newObject("PartDesign::Boolean", "Boolean029")
boolean30.Type = "Fuse"
boolean30.addObjects([body29])
doc.recompute()

boolean31 = body46.newObject("PartDesign::Boolean", "Boolean030")
boolean31.Type = "Fuse"
boolean31.addObjects([body39])
body47 = doc.addObject("PartDesign::Body", "Body046")

sketch34 = body47.newObject("Sketcher::SketchObject", "Sketch033")
sketch34.AttachmentSupport = (doc.getObject("XY_Plane046"), [""])
sketch34.MapMode = "FlatFace"
add_polygon(sketch34, [(85, 88), (95, 66), (95, 88)])
sketch34.addConstraint([
    Sketcher.Constraint("Vertical", 1),
    Sketcher.Constraint("Horizontal", 2),
    Sketcher.Constraint("DistanceX", 2, 2, 2, 1, Q("10 mm")),
    Sketcher.Constraint("DistanceY", 1, 1, 1, 2, Q("21.5 mm")),
    Sketcher.Constraint("DistanceX", -1, 1, 0, 2, Q("95 mm")),
    Sketcher.Constraint("DistanceY", -1, 1, 1, 2, Q("88 mm")),
])
pad29 = body47.newObject("PartDesign::Pad", "Pad028")
pad29.Profile = sketch34
pad29.Length = 4
body48 = doc.addObject("PartDesign::Body", "Body047")
doc.recompute()

body47.Placement = App.Placement(V(0, 0, 73), App.Rotation(V(0, 0, 1), 0))
boolean32 = body48.newObject("PartDesign::Boolean", "Boolean031")
boolean32.Type = "Fuse"
boolean32.addObjects([body47])
body49 = doc.addObject("PartDesign::Body", "Body048")

sketch35 = body49.newObject("Sketcher::SketchObject", "Sketch034")
sketch35.AttachmentSupport = (doc.getObject("XY_Plane048"), [""])
sketch35.MapMode = "FlatFace"
add_polygon(sketch35, [(85, 88), (95, 66), (95, 88)])
sketch35.addConstraint([
    Sketcher.Constraint("Vertical", 1),
    Sketcher.Constraint("Horizontal", 2),
    Sketcher.Constraint("DistanceX", 2, 2, 2, 1, Q("10 mm")),
    Sketcher.Constraint("DistanceY", 1, 1, 1, 2, Q("21.5 mm")),
    Sketcher.Constraint("DistanceX", -1, 1, 0, 2, Q("95 mm")),
    Sketcher.Constraint("DistanceY", -1, 1, 1, 2, Q("88 mm")),
])
pad30 = body49.newObject("PartDesign::Pad", "Pad029")
pad30.Profile = sketch35
pad30.Length = 4
body50 = doc.addObject("PartDesign::Body", "Body049")
doc.recompute()

body49.Placement = App.Placement(V(234, -0.1, 76.9), App.Rotation(V(0, 1, 0), 180))
boolean33 = body50.newObject("PartDesign::Boolean", "Boolean032")
boolean33.Type = "Fuse"
boolean33.addObjects([body49])
doc.recompute()

boolean34 = body50.newObject("PartDesign::Boolean", "Boolean033")
boolean34.Type = "Fuse"
boolean34.addObjects([body46])
doc.recompute()

boolean35 = body50.newObject("PartDesign::Boolean", "Boolean034")
boolean35.Type = "Fuse"
boolean35.addObjects([body48])
doc.recompute()

boolean36 = body50.newObject("PartDesign::Boolean", "Boolean035")
boolean36.Type = "Fuse"
boolean36.addObjects([body22])
doc.recompute()

boolean37 = body50.newObject("PartDesign::Boolean", "Boolean036")
boolean37.Type = "Fuse"
boolean37.addObjects([body26])
doc.recompute()

boolean38 = body50.newObject("PartDesign::Boolean", "Boolean037")
boolean38.Type = "Cut"
boolean38.addObjects([body18])
doc.recompute()

boolean39 = body50.newObject("PartDesign::Boolean", "Boolean038")
boolean39.Type = "Cut"
boolean39.addObjects([body17])
doc.recompute()

boolean40 = body50.newObject("PartDesign::Boolean", "Boolean039")
boolean40.Type = "Cut"
boolean40.addObjects([body16])
doc.recompute()

boolean41 = body50.newObject("PartDesign::Boolean", "Boolean040")
boolean41.Type = "Cut"
boolean41.addObjects([body15])
doc.recompute()

boolean42 = body50.newObject("PartDesign::Boolean", "Boolean041")
boolean42.Type = "Cut"
boolean42.addObjects([body14])
doc.recompute()

boolean43 = body50.newObject("PartDesign::Boolean", "Boolean042")
boolean43.Type = "Cut"
boolean43.addObjects([body13])
doc.recompute()

boolean44 = body50.newObject("PartDesign::Boolean", "Boolean043")
boolean44.Type = "Cut"
boolean44.addObjects([body12])
doc.recompute()

boolean45 = body50.newObject("PartDesign::Boolean", "Boolean044")
boolean45.Type = "Cut"
boolean45.addObjects([body11])
doc.recompute()

boolean46 = body50.newObject("PartDesign::Boolean", "Boolean045")
boolean46.Type = "Cut"
boolean46.addObjects([body10])
doc.recompute()

boolean47 = body50.newObject("PartDesign::Boolean", "Boolean046")
boolean47.Type = "Cut"
boolean47.addObjects([body9])
doc.recompute()

boolean48 = body50.newObject("PartDesign::Boolean", "Boolean047")
boolean48.Type = "Cut"
boolean48.addObjects([body5])
doc.recompute()

boolean49 = body50.newObject("PartDesign::Boolean", "Boolean048")
boolean49.Type = "Cut"
boolean49.addObjects([body4])

doc.recompute()
